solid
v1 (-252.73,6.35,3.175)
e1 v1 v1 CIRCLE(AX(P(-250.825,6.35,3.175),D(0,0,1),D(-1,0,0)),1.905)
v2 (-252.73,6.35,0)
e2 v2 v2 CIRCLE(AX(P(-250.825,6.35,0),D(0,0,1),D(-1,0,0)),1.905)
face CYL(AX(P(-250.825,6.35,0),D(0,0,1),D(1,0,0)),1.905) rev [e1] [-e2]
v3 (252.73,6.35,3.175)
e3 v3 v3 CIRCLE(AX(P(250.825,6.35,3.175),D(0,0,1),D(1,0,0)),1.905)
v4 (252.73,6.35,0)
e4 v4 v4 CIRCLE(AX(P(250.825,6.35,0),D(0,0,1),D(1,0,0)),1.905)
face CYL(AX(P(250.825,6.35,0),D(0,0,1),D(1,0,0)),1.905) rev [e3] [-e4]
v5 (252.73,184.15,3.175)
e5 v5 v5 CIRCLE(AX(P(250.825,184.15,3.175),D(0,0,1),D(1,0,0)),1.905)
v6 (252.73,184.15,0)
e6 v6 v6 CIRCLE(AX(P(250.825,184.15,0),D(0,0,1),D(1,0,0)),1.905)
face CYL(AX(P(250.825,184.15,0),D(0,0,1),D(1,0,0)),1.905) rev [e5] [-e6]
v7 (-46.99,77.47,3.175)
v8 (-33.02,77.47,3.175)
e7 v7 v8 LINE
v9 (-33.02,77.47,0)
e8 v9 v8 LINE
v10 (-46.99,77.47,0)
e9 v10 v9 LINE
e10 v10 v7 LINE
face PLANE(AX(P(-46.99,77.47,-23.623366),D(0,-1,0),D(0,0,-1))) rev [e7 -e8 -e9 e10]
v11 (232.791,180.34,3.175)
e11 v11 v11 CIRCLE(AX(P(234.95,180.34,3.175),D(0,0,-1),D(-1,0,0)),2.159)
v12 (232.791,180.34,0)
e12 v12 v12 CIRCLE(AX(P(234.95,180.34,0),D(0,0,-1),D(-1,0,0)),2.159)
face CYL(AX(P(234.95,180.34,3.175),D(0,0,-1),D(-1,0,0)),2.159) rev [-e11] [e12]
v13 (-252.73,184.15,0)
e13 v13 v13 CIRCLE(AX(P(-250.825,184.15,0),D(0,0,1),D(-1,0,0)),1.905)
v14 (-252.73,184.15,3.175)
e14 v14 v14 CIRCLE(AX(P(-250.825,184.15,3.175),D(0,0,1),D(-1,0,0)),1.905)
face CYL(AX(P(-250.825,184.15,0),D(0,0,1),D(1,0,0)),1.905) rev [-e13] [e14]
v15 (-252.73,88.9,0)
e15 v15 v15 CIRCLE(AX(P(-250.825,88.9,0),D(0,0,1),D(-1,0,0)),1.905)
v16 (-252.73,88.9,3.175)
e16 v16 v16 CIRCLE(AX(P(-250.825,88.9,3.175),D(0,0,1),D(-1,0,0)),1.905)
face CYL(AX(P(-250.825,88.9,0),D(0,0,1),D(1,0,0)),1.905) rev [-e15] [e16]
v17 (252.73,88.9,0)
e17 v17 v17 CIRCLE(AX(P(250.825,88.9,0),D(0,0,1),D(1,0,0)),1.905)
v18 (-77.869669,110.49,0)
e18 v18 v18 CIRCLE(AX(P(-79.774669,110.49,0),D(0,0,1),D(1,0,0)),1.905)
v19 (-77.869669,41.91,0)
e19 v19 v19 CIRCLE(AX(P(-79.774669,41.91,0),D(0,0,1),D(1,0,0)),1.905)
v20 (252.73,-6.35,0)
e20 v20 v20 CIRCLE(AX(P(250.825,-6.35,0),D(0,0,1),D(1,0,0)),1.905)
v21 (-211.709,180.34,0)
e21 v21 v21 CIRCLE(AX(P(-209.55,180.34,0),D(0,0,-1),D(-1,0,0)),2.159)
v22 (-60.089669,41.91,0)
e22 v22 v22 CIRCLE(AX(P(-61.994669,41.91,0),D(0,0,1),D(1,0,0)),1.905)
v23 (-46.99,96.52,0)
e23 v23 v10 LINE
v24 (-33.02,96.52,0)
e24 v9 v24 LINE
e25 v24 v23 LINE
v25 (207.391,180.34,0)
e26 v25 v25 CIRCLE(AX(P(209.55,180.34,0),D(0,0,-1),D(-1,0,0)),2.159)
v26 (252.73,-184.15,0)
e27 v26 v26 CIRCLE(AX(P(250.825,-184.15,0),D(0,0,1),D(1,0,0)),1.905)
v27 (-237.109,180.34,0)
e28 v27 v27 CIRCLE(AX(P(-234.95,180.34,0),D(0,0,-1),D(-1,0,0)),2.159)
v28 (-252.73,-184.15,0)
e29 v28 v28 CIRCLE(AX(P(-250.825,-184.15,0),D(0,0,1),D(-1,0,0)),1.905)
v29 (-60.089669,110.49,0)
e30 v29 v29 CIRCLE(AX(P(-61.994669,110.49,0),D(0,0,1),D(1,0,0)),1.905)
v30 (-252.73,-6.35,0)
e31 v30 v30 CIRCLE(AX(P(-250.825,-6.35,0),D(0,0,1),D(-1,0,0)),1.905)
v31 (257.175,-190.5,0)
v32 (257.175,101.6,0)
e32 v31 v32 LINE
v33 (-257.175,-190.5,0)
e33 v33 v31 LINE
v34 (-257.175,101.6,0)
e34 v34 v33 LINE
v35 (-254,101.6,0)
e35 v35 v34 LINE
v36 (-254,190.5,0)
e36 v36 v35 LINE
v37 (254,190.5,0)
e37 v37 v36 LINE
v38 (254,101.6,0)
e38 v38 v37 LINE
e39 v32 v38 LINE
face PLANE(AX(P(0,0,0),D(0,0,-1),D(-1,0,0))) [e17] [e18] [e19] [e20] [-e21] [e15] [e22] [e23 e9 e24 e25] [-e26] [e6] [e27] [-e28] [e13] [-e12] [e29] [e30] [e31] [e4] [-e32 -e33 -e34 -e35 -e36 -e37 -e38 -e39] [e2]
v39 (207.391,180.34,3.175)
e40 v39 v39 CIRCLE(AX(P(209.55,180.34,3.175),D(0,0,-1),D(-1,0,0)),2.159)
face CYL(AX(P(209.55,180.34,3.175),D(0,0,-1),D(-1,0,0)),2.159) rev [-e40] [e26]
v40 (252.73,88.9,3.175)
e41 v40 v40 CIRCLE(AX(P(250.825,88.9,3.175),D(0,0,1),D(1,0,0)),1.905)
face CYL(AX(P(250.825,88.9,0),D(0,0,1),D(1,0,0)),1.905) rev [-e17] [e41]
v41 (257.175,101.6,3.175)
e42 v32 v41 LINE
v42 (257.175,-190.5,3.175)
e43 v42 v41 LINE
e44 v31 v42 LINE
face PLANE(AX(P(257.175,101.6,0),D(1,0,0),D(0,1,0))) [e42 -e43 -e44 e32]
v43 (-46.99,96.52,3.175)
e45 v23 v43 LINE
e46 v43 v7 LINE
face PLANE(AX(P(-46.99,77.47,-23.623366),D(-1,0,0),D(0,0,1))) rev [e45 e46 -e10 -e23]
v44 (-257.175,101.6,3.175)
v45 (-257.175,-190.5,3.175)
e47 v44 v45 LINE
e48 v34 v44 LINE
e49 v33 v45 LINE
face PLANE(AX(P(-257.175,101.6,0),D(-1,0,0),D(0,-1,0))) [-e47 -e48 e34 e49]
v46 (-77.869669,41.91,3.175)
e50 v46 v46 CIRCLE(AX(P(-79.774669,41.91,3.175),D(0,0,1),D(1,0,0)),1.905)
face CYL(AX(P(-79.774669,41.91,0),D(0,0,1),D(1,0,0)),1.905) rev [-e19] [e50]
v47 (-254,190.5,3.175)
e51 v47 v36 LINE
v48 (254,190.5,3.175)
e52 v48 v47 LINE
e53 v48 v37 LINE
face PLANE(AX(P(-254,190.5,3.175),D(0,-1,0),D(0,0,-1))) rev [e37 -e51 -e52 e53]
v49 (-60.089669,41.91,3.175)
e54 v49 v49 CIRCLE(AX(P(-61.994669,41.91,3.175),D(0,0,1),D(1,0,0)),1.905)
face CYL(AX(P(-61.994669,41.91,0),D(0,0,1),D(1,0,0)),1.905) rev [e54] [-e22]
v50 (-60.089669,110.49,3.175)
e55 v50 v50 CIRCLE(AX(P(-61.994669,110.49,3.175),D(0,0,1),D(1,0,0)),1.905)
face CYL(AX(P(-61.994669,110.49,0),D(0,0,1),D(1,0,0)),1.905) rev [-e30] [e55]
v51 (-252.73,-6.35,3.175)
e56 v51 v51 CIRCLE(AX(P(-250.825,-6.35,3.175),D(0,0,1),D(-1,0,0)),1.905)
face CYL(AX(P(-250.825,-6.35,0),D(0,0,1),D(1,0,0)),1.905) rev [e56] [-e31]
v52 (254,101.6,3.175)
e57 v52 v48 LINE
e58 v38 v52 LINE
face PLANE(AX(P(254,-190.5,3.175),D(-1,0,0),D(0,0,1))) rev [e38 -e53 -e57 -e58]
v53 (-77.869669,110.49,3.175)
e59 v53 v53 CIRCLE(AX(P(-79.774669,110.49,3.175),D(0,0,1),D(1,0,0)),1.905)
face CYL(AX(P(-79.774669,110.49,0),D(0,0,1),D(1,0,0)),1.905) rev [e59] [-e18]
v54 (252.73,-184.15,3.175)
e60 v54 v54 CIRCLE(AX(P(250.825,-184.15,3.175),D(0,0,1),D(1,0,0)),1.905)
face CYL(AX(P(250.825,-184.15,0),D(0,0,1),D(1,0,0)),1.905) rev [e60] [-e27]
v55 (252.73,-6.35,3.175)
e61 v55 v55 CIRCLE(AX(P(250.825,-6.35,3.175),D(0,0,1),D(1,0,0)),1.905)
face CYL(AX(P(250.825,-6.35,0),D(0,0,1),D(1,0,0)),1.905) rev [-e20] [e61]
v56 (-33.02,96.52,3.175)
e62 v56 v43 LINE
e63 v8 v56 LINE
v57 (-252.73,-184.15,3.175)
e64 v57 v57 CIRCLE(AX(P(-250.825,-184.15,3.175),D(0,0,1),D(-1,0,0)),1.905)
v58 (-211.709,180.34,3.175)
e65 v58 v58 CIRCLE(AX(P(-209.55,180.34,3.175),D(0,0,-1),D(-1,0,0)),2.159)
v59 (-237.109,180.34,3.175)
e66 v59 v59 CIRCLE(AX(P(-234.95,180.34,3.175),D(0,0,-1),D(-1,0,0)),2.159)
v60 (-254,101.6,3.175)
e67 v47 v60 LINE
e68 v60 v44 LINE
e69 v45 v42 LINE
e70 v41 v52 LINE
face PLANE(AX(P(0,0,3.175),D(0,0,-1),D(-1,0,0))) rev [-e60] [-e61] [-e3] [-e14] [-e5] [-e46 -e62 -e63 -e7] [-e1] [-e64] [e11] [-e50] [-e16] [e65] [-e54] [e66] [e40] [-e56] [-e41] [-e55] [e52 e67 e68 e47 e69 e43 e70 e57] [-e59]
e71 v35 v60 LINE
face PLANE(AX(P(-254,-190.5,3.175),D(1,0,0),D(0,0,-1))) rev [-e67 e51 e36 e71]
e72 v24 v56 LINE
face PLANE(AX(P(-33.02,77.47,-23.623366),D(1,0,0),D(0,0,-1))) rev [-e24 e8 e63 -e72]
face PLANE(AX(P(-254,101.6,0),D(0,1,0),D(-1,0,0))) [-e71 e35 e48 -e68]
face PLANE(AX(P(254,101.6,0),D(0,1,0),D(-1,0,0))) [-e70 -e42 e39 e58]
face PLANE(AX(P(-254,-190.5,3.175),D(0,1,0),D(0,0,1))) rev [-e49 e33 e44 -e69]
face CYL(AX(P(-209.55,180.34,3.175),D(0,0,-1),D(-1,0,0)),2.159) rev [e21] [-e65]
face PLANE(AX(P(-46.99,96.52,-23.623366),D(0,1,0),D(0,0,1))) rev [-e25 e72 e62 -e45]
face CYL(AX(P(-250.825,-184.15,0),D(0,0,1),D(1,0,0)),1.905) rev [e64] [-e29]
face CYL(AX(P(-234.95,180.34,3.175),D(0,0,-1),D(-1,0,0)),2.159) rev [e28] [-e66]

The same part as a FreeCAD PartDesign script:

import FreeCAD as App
import Part
import Sketcher

V = App.Vector
Q = App.Units.Quantity

doc = App.newDocument("Part")
params = doc.addObject("Spreadsheet::Sheet", "Params")
for row, (alias, value) in enumerate([
    ("sketch1_width", "20 in"),
    ("sketch1_height", "15 in"),
    ("pad1_length", "0.125 in"),
    ("sketch2_width", "0.55 in"),
    ("sketch2_height", "0.75 in"),
    ("pocket1_length", "0.125 in"),
    ("sketch3_diameter", "0.15 in"),
    ("pocket2_length", "0.125 in"),
    ("sketch4_height", "11.5 in"),
    ("sketch4_width", "0.125 in"),
    ("pad2_length", "0.125 in"),
    ("sketch5_diameter", "0.17 in"),
], start=1):
    params.set(f"A{row}", alias)
    params.set(f"B{row}", "=" + value)
    params.setAlias(f"B{row}", alias)

body = doc.addObject("PartDesign::Body", "Body")

# Sketch on XY plane
sketch1 = body.newObject("Sketcher::SketchObject", "Sketch")
sketch1.AttachmentSupport = (doc.getObject("XY_Plane"), [""])
sketch1.MapMode = "FlatFace"
sketch1.addGeometry(Part.LineSegment(V(-254, 190, 0), V(-254, -190, 0)), False)
sketch1.addGeometry(Part.LineSegment(V(-254, -190, 0), V(254, -190, 0)), False)
sketch1.addGeometry(Part.LineSegment(V(254, -190, 0), V(254, 190, 0)), False)
sketch1.addGeometry(Part.LineSegment(V(254, 190, 0), V(-254, 190, 0)), False)
sketch1.addConstraint(Sketcher.Constraint("Coincident", 0, 2, 1, 1))
sketch1.addConstraint(Sketcher.Constraint("Coincident", 1, 2, 2, 1))
sketch1.addConstraint(Sketcher.Constraint("Coincident", 2, 2, 3, 1))
sketch1.addConstraint(Sketcher.Constraint("Coincident", 3, 2, 0, 1))
sketch1.addConstraint(Sketcher.Constraint("Vertical", 0))
sketch1.addConstraint(Sketcher.Constraint("Horizontal", 1))
sketch1.addConstraint(Sketcher.Constraint("Vertical", 2))
sketch1.addConstraint(Sketcher.Constraint("Horizontal", 3))
sketch1.addConstraint(Sketcher.Constraint("Symmetric", 0, 2, 2, 2, -1, 1))
sketch1.addConstraint(Sketcher.Constraint("DistanceX", 1, 1, 1, 2, Q("20 in")))
sketch1.addConstraint(Sketcher.Constraint("DistanceY", 0, 2, 0, 1, Q("15 in")))
sketch1.setExpression("Constraints[9]", "Params.sketch1_width")
sketch1.setExpression("Constraints[10]", "Params.sketch1_height")
pad1 = body.newObject("PartDesign::Pad", "Pad")
pad1.Profile = sketch1
pad1.setExpression("Length", "Params.pad1_length")

# Sketch on XY plane
sketch2 = body.newObject("Sketcher::SketchObject", "Sketch001")
sketch2.AttachmentSupport = (doc.getObject("XY_Plane"), [""])
sketch2.MapMode = "FlatFace"
sketch2.AttachmentOffset = App.Placement(V(0, 0, 0.125 * 25.4), App.Rotation())
sketch2.addGeometry(Part.LineSegment(V(-47, 97, 0), V(-47, 77, 0)), False)
sketch2.addGeometry(Part.LineSegment(V(-47, 77, 0), V(-33, 77, 0)), False)
sketch2.addGeometry(Part.LineSegment(V(-33, 77, 0), V(-33, 97, 0)), False)
sketch2.addGeometry(Part.LineSegment(V(-33, 97, 0), V(-47, 97, 0)), False)
sketch2.addConstraint(Sketcher.Constraint("Coincident", 0, 2, 1, 1))
sketch2.addConstraint(Sketcher.Constraint("Coincident", 1, 2, 2, 1))
sketch2.addConstraint(Sketcher.Constraint("Coincident", 2, 2, 3, 1))
sketch2.addConstraint(Sketcher.Constraint("Coincident", 3, 2, 0, 1))
sketch2.addConstraint(Sketcher.Constraint("Vertical", 0))
sketch2.addConstraint(Sketcher.Constraint("Horizontal", 1))
sketch2.addConstraint(Sketcher.Constraint("Vertical", 2))
sketch2.addConstraint(Sketcher.Constraint("Horizontal", 3))
sketch2.addConstraint(Sketcher.Constraint("DistanceX", 1, 1, 1, 2, Q("0.55 in")))
sketch2.addConstraint(Sketcher.Constraint("DistanceY", 0, 2, 0, 1, Q("0.75 in")))
sketch2.addConstraint(Sketcher.Constraint("DistanceX", 1, 2, -1, 1, Q("1.3 in")))
sketch2.addConstraint(Sketcher.Constraint("DistanceY", -1, 1, 2, 2, Q("3.8 in")))
sketch2.setExpression("Constraints[8]", "Params.sketch2_width")
sketch2.setExpression("Constraints[9]", "Params.sketch2_height")
pocket1 = body.newObject("PartDesign::Pocket", "Pocket")
pocket1.Profile = sketch2
pocket1.setExpression("Length", "Params.pocket1_length")

# Sketch on XY plane
sketch3 = body.newObject("Sketcher::SketchObject", "Sketch002")
sketch3.AttachmentSupport = (doc.getObject("XY_Plane"), [""])
sketch3.MapMode = "FlatFace"
sketch3.AttachmentOffset = App.Placement(V(0, 0, 0.125 * 25.4), App.Rotation())
sketch3.addGeometry(Part.Circle(V(250.8, 184.2, 0), V(0, 0, 1), 1.9), False)
sketch3.addGeometry(Part.Circle(V(250.8, -184.2, 0), V(0, 0, 1), 1.9), False)
sketch3.addGeometry(Part.Circle(V(-79.8, 110.5, 0), V(0, 0, 1), 1.9), False)
sketch3.addGeometry(Part.Circle(V(-79.8, 41.9, 0), V(0, 0, 1), 1.9), False)
sketch3.addGeometry(Part.Circle(V(-62, 110.5, 0), V(0, 0, 1), 1.9), False)
sketch3.addGeometry(Part.Circle(V(-62, 41.9, 0), V(0, 0, 1), 1.9), False)
sketch3.addGeometry(Part.Circle(V(-250.8, 184.2, 0), V(0, 0, 1), 1.9), False)
sketch3.addGeometry(Part.Circle(V(-250.8, 88.9, 0), V(0, 0, 1), 1.9), False)
sketch3.addGeometry(Part.Circle(V(250.8, 88.9, 0), V(0, 0, 1), 1.9), False)
sketch3.addGeometry(Part.Circle(V(250.8, 6.3, 0), V(0, 0, 1), 1.9), False)
sketch3.addGeometry(Part.Circle(V(250.8, -6.3, 0), V(0, 0, 1), 1.9), False)
sketch3.addGeometry(Part.Circle(V(-250.8, 6.3, 0), V(0, 0, 1), 1.9), False)
sketch3.addGeometry(Part.Circle(V(-250.8, -6.3, 0), V(0, 0, 1), 1.9), False)
sketch3.addGeometry(Part.Circle(V(-250.8, -184.2, 0), V(0, 0, 1), 1.9), False)
sketch3.addConstraint(Sketcher.Constraint("Equal", 0, 1))
sketch3.addConstraint(Sketcher.Constraint("Equal", 1, 2))
sketch3.addConstraint(Sketcher.Constraint("Equal", 2, 3))
sketch3.addConstraint(Sketcher.Constraint("Equal", 3, 4))
sketch3.addConstraint(Sketcher.Constraint("Equal", 4, 5))
sketch3.addConstraint(Sketcher.Constraint("Equal", 5, 6))
sketch3.addConstraint(Sketcher.Constraint("Equal", 6, 7))
sketch3.addConstraint(Sketcher.Constraint("Equal", 7, 8))
sketch3.addConstraint(Sketcher.Constraint("Equal", 8, 9))
sketch3.addConstraint(Sketcher.Constraint("Equal", 9, 10))
sketch3.addConstraint(Sketcher.Constraint("Equal", 10, 11))
sketch3.addConstraint(Sketcher.Constraint("Equal", 11, 12))
sketch3.addConstraint(Sketcher.Constraint("Equal", 12, 13))
sketch3.addConstraint(Sketcher.Constraint("Symmetric", 1, 3, 6, 3, -1, 1))
sketch3.addConstraint(Sketcher.Constraint("Symmetric", 10, 3, 11, 3, -1, 1))
sketch3.addConstraint(Sketcher.Constraint("Symmetric", 9, 3, 12, 3, -1, 1))
sketch3.addConstraint(Sketcher.Constraint("Symmetric", 0, 3, 13, 3, -1, 1))
sketch3.addConstraint(Sketcher.Constraint("Symmetric", 0, 3, 6, 3, -2))
sketch3.addConstraint(Sketcher.Constraint("Symmetric", 7, 3, 8, 3, -2))
sketch3.addConstraint(Sketcher.Constraint("Symmetric", 9, 3, 11, 3, -2))
sketch3.addConstraint(Sketcher.Constraint("Horizontal", 2, 3, 4, 3))
sketch3.addConstraint(Sketcher.Constraint("Horizontal", 3, 3, 5, 3))
sketch3.addConstraint(Sketcher.Constraint("Vertical", 2, 3, 3, 3))
sketch3.addConstraint(Sketcher.Constraint("Vertical", 4, 3, 5, 3))
sketch3.addConstraint(Sketcher.Constraint("Vertical", 6, 3, 7, 3))
sketch3.addConstraint(Sketcher.Constraint("Vertical", 8, 3, 9, 3))
sketch3.addConstraint(Sketcher.Constraint("Diameter", 0, Q("0.15 in")))
sketch3.addConstraint(Sketcher.Constraint("DistanceY", 9, 3, 0, 3, Q("7 in")))
sketch3.addConstraint(Sketcher.Constraint("DistanceY", -1, 1, 7, 3, Q("3.5 in")))
sketch3.addConstraint(Sketcher.Constraint("DistanceY", 1, 3, 0, 3, Q("14.5 in")))
sketch3.addConstraint(Sketcher.Constraint("DistanceY", 2, 3, 0, 3, Q("2.9 in")))
sketch3.addConstraint(Sketcher.Constraint("DistanceY", 3, 3, 2, 3, Q("2.7 in")))
sketch3.addConstraint(Sketcher.Constraint("DistanceX", 2, 3, 4, 3, Q("0.7 in")))
sketch3.addConstraint(Sketcher.Constraint("DistanceX", 6, 3, 0, 3, Q("19.75 in")))
sketch3.addConstraint(Sketcher.Constraint("DistanceX", 2, 3, -1, 1, Q("79.774669 mm")))
sketch3.setExpression("Constraints[26]", "Params.sketch3_diameter")
pocket2 = body.newObject("PartDesign::Pocket", "Pocket001")
pocket2.Profile = sketch3
pocket2.setExpression("Length", "Params.pocket2_length")

# Sketch on XY plane
sketch4 = body.newObject("Sketcher::SketchObject", "Sketch003")
sketch4.AttachmentSupport = (doc.getObject("XY_Plane"), [""])
sketch4.MapMode = "FlatFace"
sketch4.AttachmentOffset = App.Placement(V(0, 0, 0.125 * 25.4), App.Rotation())
sketch4.addGeometry(Part.LineSegment(V(254, 101.6, 0), V(254, -190.5, 0)), False)
sketch4.addGeometry(Part.LineSegment(V(254, -190.5, 0), V(257.2, -190.5, 0)), False)
sketch4.addGeometry(Part.LineSegment(V(257.2, -190.5, 0), V(257.2, 101.6, 0)), False)
sketch4.addGeometry(Part.LineSegment(V(257.2, 101.6, 0), V(254, 101.6, 0)), False)
sketch4.addGeometry(Part.LineSegment(V(-257.2, 101.6, 0), V(-257.2, -190.5, 0)), False)
sketch4.addGeometry(Part.LineSegment(V(-257.2, -190.5, 0), V(-254, -190.5, 0)), False)
sketch4.addGeometry(Part.LineSegment(V(-254, -190.5, 0), V(-254, 101.6, 0)), False)
sketch4.addGeometry(Part.LineSegment(V(-254, 101.6, 0), V(-257.2, 101.6, 0)), False)
sketch4.addConstraint(Sketcher.Constraint("Coincident", 0, 2, 1, 1))
sketch4.addConstraint(Sketcher.Constraint("Coincident", 1, 2, 2, 1))
sketch4.addConstraint(Sketcher.Constraint("Coincident", 2, 2, 3, 1))
sketch4.addConstraint(Sketcher.Constraint("Coincident", 3, 2, 0, 1))
sketch4.addConstraint(Sketcher.Constraint("Coincident", 4, 2, 5, 1))
sketch4.addConstraint(Sketcher.Constraint("Coincident", 5, 2, 6, 1))
sketch4.addConstraint(Sketcher.Constraint("Coincident", 6, 2, 7, 1))
sketch4.addConstraint(Sketcher.Constraint("Coincident", 7, 2, 4, 1))
sketch4.addConstraint(Sketcher.Constraint("Vertical", 0))
sketch4.addConstraint(Sketcher.Constraint("Horizontal", 1))
sketch4.addConstraint(Sketcher.Constraint("Vertical", 2))
sketch4.addConstraint(Sketcher.Constraint("Horizontal", 3))
sketch4.addConstraint(Sketcher.Constraint("Vertical", 4))
sketch4.addConstraint(Sketcher.Constraint("Horizontal", 5))
sketch4.addConstraint(Sketcher.Constraint("Vertical", 6))
sketch4.addConstraint(Sketcher.Constraint("Horizontal", 7))
sketch4.addConstraint(Sketcher.Constraint("Symmetric", 1, 2, 4, 2, -2))
sketch4.addConstraint(Sketcher.Constraint("Symmetric", 3, 2, 6, 2, -2))
sketch4.addConstraint(Sketcher.Constraint("DistanceY", 0, 2, 0, 1, Q("11.5 in")))
sketch4.addConstraint(Sketcher.Constraint("DistanceX", -1, 1, 0, 2, Q("10 in")))
sketch4.addConstraint(Sketcher.Constraint("DistanceY", -1, 1, 2, 2, Q("4 in")))
sketch4.addConstraint(Sketcher.Constraint("DistanceX", 1, 1, 1, 2, Q("0.125 in")))
sketch4.setExpression("Constraints[18]", "Params.sketch4_height")
sketch4.setExpression("Constraints[21]", "Params.sketch4_width")
pad2 = body.newObject("PartDesign::Pad", "Pad001")
pad2.Profile = sketch4
pad2.setExpression("Length", "Params.pad2_length")
pad2.Reversed = True

# Sketch on XY plane
sketch5 = body.newObject("Sketcher::SketchObject", "Sketch004")
sketch5.AttachmentSupport = (doc.getObject("XY_Plane"), [""])
sketch5.MapMode = "FlatFace"
sketch5.addGeometry(Part.Circle(V(-234.9, 180.3, 0), V(0, 0, 1), 2.2), False)
sketch5.addGeometry(Part.Circle(V(-209.6, 180.3, 0), V(0, 0, 1), 2.2), False)
sketch5.addGeometry(Part.Circle(V(234.9, 180.3, 0), V(0, 0, 1), 2.2), False)
sketch5.addGeometry(Part.Circle(V(209.6, 180.3, 0), V(0, 0, 1), 2.2), False)
sketch5.addConstraint(Sketcher.Constraint("Equal", 0, 1))
sketch5.addConstraint(Sketcher.Constraint("Equal", 1, 2))
sketch5.addConstraint(Sketcher.Constraint("Equal", 2, 3))
sketch5.addConstraint(Sketcher.Constraint("Symmetric", 0, 3, 2, 3, -2))
sketch5.addConstraint(Sketcher.Constraint("Symmetric", 1, 3, 3, 3, -2))
sketch5.addConstraint(Sketcher.Constraint("Horizontal", 0, 3, 1, 3))
sketch5.addConstraint(Sketcher.Constraint("Diameter", 0, Q("0.17 in")))
sketch5.addConstraint(Sketcher.Constraint("DistanceX", 0, 3, 1, 3, Q("1 in")))
sketch5.addConstraint(Sketcher.Constraint("DistanceY", -1, 1, 0, 3, Q("7.1 in")))
sketch5.addConstraint(Sketcher.Constraint("DistanceX", 1, 3, 2, 3, Q("17.5 in")))
sketch5.setExpression("Constraints[6]", "Params.sketch5_diameter")
pocket3 = body.newObject("PartDesign::Pocket", "Pocket002")
pocket3.Profile = sketch5
pocket3.Type = "ThroughAll"
pocket3.Reversed = True

doc.recompute()
